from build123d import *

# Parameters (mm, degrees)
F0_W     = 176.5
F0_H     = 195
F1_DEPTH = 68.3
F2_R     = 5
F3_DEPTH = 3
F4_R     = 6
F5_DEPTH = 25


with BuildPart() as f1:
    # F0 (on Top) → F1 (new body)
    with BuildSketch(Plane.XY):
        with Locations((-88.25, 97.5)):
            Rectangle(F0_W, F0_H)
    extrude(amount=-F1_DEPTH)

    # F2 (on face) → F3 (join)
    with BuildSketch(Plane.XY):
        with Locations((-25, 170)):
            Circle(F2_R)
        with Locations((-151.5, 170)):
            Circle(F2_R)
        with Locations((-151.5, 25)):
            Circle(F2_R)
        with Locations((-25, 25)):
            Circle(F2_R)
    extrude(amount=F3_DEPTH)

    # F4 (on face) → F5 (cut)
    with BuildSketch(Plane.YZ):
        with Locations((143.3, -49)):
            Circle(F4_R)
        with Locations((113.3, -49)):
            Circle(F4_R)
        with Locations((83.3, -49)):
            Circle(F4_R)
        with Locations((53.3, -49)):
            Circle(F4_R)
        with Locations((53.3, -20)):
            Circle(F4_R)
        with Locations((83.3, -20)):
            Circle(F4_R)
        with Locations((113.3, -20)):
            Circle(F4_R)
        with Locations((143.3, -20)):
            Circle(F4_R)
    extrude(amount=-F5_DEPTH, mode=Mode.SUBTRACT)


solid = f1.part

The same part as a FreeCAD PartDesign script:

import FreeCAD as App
import Part
import Sketcher
from FreeCAD import Vector
Q = App.Units.Quantity


def add_polygon(sketch, points):
    """Adds a closed chain of lines whose ends are joined by coincident constraints."""
    first, n = sketch.GeometryCount, len(points)
    for a, b in zip(points, points[1:] + points[:1]):
        sketch.addGeometry(Part.LineSegment(App.Vector(*a, 0), App.Vector(*b, 0)), False)
    for i in range(n):
        sketch.addConstraint(Sketcher.Constraint("Coincident", first + i, 2, first + (i + 1) % n, 1))

doc = App.newDocument("Part")
body = doc.addObject("PartDesign::Body", "Body")

sketch1 = body.newObject("Sketcher::SketchObject", "Sketch")
sketch1.AttachmentSupport = (doc.getObject("XY_Plane"), [""])
sketch1.MapMode = "FlatFace"
add_polygon(sketch1, [(-176.5, 195), (-176.5, 0), (0, 0), (0, 195)])
sketch1.addConstraint(Sketcher.Constraint("Vertical", 0))
sketch1.addConstraint(Sketcher.Constraint("Horizontal", 1))
sketch1.addConstraint(Sketcher.Constraint("Vertical", 2))
sketch1.addConstraint(Sketcher.Constraint("Horizontal", 3))
sketch1.addConstraint(Sketcher.Constraint("Coincident", 1, 2, -1, 1))
sketch1.addConstraint(Sketcher.Constraint("DistanceY", 0, 2, 0, 1, Q("195 mm")))
sketch1.addConstraint(Sketcher.Constraint("DistanceX", 1, 1, 1, 2, Q("176.5 mm")))
pad1 = body.newObject("PartDesign::Pad", "Pad")
pad1.Profile = sketch1
pad1.Length = 68.3
pad1.Reversed = True

sketch2 = body.newObject("Sketcher::SketchObject", "Sketch001")
sketch2.AttachmentSupport = (doc.getObject("XY_Plane"), [""])
sketch2.MapMode = "FlatFace"
sketch2.addGeometry(Part.Circle(Vector(-25, 170, 0), Vector(0, 0, 1), 5), False)
sketch2.addGeometry(Part.Circle(Vector(-151.5, 170, 0), Vector(0, 0, 1), 5), False)
sketch2.addGeometry(Part.Circle(Vector(-151.5, 25, 0), Vector(0, 0, 1), 5), False)
sketch2.addGeometry(Part.Circle(Vector(-25, 25, 0), Vector(0, 0, 1), 5), False)
sketch2.addConstraint(Sketcher.Constraint("Equal", 0, 1))
sketch2.addConstraint(Sketcher.Constraint("Equal", 1, 2))
sketch2.addConstraint(Sketcher.Constraint("Equal", 2, 3))
sketch2.addConstraint(Sketcher.Constraint("Horizontal", 0, 3, 1, 3))
sketch2.addConstraint(Sketcher.Constraint("Horizontal", 2, 3, 3, 3))
sketch2.addConstraint(Sketcher.Constraint("Vertical", 1, 3, 2, 3))
sketch2.addConstraint(Sketcher.Constraint("Vertical", 0, 3, 3, 3))
sketch2.addConstraint(Sketcher.Constraint("Diameter", 0, Q("10 mm")))
sketch2.addConstraint(Sketcher.Constraint("DistanceX", 0, 3, -1, 1, Q("25 mm")))
sketch2.addConstraint(Sketcher.Constraint("DistanceY", -1, 1, 0, 3, Q("170 mm")))
sketch2.addConstraint(Sketcher.Constraint("DistanceY", -1, 1, 2, 3, Q("25 mm")))
sketch2.addConstraint(Sketcher.Constraint("DistanceX", 1, 3, -1, 1, Q("151.5 mm")))
pad2 = body.newObject("PartDesign::Pad", "Pad001")
pad2.Profile = sketch2
pad2.Length = 3

sketch3 = body.newObject("Sketcher::SketchObject", "Sketch002")
sketch3.AttachmentSupport = (doc.getObject("YZ_Plane"), [""])
sketch3.MapMode = "FlatFace"
sketch3.addGeometry(Part.Circle(Vector(143.3, -49, 0), Vector(0, 0, 1), 6), False)
sketch3.addGeometry(Part.Circle(Vector(113.3, -49, 0), Vector(0, 0, 1), 6), False)
sketch3.addGeometry(Part.Circle(Vector(83.3, -49, 0), Vector(0, 0, 1), 6), False)
sketch3.addGeometry(Part.Circle(Vector(53.3, -49, 0), Vector(0, 0, 1), 6), False)
sketch3.addGeometry(Part.Circle(Vector(53.3, -20, 0), Vector(0, 0, 1), 6), False)
sketch3.addGeometry(Part.Circle(Vector(83.3, -20, 0), Vector(0, 0, 1), 6), False)
sketch3.addGeometry(Part.Circle(Vector(113.3, -20, 0), Vector(0, 0, 1), 6), False)
sketch3.addGeometry(Part.Circle(Vector(143.3, -20, 0), Vector(0, 0, 1), 6), False)
sketch3.addConstraint(Sketcher.Constraint("Equal", 0, 1))
sketch3.addConstraint(Sketcher.Constraint("Equal", 1, 2))
sketch3.addConstraint(Sketcher.Constraint("Equal", 2, 3))
sketch3.addConstraint(Sketcher.Constraint("Equal", 3, 4))
sketch3.addConstraint(Sketcher.Constraint("Equal", 4, 5))
sketch3.addConstraint(Sketcher.Constraint("Equal", 5, 6))
sketch3.addConstraint(Sketcher.Constraint("Equal", 6, 7))
sketch3.addConstraint(Sketcher.Constraint("Horizontal", 0, 3, 1, 3))
sketch3.addConstraint(Sketcher.Constraint("Horizontal", 1, 3, 2, 3))
sketch3.addConstraint(Sketcher.Constraint("Horizontal", 2, 3, 3, 3))
sketch3.addConstraint(Sketcher.Constraint("Horizontal", 4, 3, 5, 3))
sketch3.addConstraint(Sketcher.Constraint("Horizontal", 5, 3, 6, 3))
sketch3.addConstraint(Sketcher.Constraint("Horizontal", 6, 3, 7, 3))
sketch3.addConstraint(Sketcher.Constraint("Vertical", 3, 3, 4, 3))
sketch3.addConstraint(Sketcher.Constraint("Vertical", 2, 3, 5, 3))
sketch3.addConstraint(Sketcher.Constraint("Vertical", 1, 3, 6, 3))
sketch3.addConstraint(Sketcher.Constraint("Vertical", 0, 3, 7, 3))
sketch3.addConstraint(Sketcher.Constraint("Diameter", 0, Q("12 mm")))
sketch3.addConstraint(Sketcher.Constraint("DistanceY", 0, 3, -1, 1, Q("49 mm")))
sketch3.addConstraint(Sketcher.Constraint("DistanceY", 4, 3, -1, 1, Q("20 mm")))
sketch3.addConstraint(Sketcher.Constraint("DistanceX", 1, 3, 0, 3, Q("30 mm")))
sketch3.addConstraint(Sketcher.Constraint("DistanceX", 2, 3, 1, 3, Q("30 mm")))
sketch3.addConstraint(Sketcher.Constraint("DistanceX", 3, 3, 2, 3, Q("30 mm")))
sketch3.addConstraint(Sketcher.Constraint("DistanceX", -1, 1, 0, 3, Q("143.3 mm")))
pocket1 = body.newObject("PartDesign::Pocket", "Pocket")
pocket1.Profile = sketch3
pocket1.Length = 25

doc.recompute()
